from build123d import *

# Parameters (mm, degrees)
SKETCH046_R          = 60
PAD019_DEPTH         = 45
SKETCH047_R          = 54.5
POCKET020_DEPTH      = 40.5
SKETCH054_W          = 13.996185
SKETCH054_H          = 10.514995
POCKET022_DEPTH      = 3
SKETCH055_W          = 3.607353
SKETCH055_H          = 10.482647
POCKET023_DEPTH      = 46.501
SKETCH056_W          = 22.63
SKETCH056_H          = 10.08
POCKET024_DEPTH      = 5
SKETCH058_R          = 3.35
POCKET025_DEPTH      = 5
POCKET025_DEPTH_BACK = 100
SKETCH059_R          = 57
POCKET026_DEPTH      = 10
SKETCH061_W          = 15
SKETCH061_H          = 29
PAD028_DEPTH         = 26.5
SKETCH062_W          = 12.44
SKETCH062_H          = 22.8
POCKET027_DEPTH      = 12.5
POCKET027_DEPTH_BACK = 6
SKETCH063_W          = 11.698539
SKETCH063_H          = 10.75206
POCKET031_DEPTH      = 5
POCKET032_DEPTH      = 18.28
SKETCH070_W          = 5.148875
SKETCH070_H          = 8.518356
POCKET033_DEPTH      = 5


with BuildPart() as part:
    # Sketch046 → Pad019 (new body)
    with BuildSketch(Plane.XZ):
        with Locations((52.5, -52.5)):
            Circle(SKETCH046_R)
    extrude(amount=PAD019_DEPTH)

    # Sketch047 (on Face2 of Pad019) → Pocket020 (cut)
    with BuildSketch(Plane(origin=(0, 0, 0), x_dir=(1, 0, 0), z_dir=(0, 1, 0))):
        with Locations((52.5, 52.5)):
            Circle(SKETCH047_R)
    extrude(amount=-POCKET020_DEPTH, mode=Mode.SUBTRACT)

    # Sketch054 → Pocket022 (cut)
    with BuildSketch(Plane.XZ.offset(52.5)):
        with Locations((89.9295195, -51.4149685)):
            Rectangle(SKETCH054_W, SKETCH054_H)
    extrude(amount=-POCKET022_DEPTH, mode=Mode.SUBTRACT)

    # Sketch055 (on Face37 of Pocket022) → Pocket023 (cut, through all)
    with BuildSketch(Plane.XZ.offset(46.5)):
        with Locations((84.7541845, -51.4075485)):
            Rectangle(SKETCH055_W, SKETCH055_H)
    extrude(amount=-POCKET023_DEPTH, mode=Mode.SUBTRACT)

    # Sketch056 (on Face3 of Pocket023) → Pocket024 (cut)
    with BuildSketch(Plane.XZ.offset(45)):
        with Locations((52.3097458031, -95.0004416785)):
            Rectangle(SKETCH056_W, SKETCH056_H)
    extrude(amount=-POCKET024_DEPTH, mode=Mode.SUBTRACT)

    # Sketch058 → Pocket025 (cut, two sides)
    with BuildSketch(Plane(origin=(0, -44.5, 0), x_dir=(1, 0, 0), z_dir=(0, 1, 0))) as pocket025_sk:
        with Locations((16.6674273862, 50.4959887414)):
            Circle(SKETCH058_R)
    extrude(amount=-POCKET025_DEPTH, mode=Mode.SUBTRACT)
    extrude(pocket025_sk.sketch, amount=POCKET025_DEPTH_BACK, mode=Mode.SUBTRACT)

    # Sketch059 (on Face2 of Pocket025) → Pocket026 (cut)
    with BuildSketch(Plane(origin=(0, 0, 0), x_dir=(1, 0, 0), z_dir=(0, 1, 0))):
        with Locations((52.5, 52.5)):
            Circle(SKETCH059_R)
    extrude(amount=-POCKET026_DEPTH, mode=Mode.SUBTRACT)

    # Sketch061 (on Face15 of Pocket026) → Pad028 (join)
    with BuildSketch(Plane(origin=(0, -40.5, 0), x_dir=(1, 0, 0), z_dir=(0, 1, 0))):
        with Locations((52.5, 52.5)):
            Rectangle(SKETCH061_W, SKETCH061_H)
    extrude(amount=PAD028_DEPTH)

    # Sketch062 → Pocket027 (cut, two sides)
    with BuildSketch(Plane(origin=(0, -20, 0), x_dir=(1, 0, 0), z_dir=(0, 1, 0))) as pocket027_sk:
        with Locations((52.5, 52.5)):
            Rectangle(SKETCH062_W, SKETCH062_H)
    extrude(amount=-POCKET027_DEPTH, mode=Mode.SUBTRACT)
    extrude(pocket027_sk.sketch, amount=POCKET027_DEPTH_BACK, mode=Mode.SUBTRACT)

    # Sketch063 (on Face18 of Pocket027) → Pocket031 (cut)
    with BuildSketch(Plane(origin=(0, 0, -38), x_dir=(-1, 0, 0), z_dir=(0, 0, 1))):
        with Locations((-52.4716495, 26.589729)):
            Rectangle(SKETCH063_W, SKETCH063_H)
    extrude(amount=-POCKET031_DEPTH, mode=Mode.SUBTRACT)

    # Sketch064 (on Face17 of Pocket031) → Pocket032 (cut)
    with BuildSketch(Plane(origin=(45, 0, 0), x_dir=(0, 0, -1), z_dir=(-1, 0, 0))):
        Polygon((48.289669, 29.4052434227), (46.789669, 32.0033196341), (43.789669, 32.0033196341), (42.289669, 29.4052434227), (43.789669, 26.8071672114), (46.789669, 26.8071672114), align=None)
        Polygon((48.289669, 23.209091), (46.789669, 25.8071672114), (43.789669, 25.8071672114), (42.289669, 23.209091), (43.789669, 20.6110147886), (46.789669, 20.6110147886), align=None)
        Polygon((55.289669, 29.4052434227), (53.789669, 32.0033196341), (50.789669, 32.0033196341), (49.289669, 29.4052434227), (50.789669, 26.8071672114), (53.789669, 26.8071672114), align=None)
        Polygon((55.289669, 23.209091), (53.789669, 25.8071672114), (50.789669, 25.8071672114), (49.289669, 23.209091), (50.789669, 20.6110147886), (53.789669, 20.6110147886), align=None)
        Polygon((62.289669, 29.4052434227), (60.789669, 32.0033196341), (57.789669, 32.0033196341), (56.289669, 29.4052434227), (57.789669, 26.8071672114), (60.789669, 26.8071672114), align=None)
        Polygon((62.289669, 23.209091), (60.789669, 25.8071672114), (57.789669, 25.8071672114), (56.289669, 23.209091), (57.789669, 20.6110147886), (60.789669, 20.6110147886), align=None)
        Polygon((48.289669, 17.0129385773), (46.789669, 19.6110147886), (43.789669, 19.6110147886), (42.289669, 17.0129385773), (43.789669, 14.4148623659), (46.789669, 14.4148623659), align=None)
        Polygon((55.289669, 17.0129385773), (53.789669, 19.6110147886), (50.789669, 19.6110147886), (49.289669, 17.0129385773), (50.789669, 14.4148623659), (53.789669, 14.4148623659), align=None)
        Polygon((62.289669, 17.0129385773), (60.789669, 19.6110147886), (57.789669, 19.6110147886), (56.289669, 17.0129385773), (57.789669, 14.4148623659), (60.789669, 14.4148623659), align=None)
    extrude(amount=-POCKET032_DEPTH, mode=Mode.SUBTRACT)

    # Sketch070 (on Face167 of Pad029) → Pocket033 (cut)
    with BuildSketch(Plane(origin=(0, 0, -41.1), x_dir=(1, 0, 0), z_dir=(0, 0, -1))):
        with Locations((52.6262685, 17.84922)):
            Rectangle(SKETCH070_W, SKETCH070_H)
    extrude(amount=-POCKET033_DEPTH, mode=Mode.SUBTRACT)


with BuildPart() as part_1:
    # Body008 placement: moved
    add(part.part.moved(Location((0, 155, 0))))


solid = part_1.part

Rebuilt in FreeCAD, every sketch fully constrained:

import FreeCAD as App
import Part
import Sketcher
from FreeCAD import Vector
Q = App.Units.Quantity

doc = App.newDocument("Part")
body = doc.addObject("PartDesign::Body", "Body")

sketch1 = doc.addObject("Sketcher::SketchObject", "Sketch")
body.addObject(sketch1)
sketch1.AttachmentSupport = (doc.XZ_Plane, [""])
sketch1.MapMode = "FlatFace"
sketch1.addGeometry(Part.Circle(Vector(52.5, -52.5, 0), Vector(0, 0, 1), 60), False)
sketch1.addConstraint([
    Sketcher.Constraint("Diameter", 0, Q("120 mm")),
    Sketcher.Constraint("DistanceX", -1, 1, 0, 3, Q("52.5 mm")),
    Sketcher.Constraint("DistanceY", 0, 3, -1, 1, Q("52.5 mm")),
])
pad1 = doc.addObject("PartDesign::Pad", "Pad")
body.addObject(pad1)
pad1.Profile = sketch1
pad1.Length = 45

sketch2 = doc.addObject("Sketcher::SketchObject", "Sketch001")
body.addObject(sketch2)
sketch2.AttachmentSupport = (doc.XZ_Plane, [""])
sketch2.MapMode = "FlatFace"
sketch2.addGeometry(Part.Circle(Vector(52.5, -52.5, 0), Vector(0, 0, 1), 54.5), False)
sketch2.addConstraint([
    Sketcher.Constraint("Diameter", 0, Q("109 mm")),
    Sketcher.Constraint("DistanceX", -1, 1, 0, 3, Q("52.5 mm")),
    Sketcher.Constraint("DistanceY", 0, 3, -1, 1, Q("52.5 mm")),
])
pocket1 = doc.addObject("PartDesign::Pocket", "Pocket")
body.addObject(pocket1)
pocket1.Profile = sketch2
pocket1.Length = 40.5
pocket1.Reversed = True

sketch3 = doc.addObject("Sketcher::SketchObject", "Sketch002")
body.addObject(sketch3)
sketch3.AttachmentSupport = (doc.XZ_Plane, [""])
sketch3.MapMode = "FlatFace"
sketch3.AttachmentOffset = App.Placement(Vector(0, 0, 52.5), App.Rotation())
sketch3.addGeometry([
    Part.LineSegment(Vector(82.931427, -46.157471, 0), Vector(82.931427, -56.672466, 0)),
    Part.LineSegment(Vector(82.931427, -56.672466, 0), Vector(96.927612, -56.672466, 0)),
    Part.LineSegment(Vector(96.927612, -56.672466, 0), Vector(96.927612, -46.157471, 0)),
    Part.LineSegment(Vector(96.927612, -46.157471, 0), Vector(82.931427, -46.157471, 0)),
], False)
sketch3.addConstraint([
    Sketcher.Constraint("Coincident", 0, 2, 1, 1),
    Sketcher.Constraint("Coincident", 1, 2, 2, 1),
    Sketcher.Constraint("Coincident", 2, 2, 3, 1),
    Sketcher.Constraint("Coincident", 3, 2, 0, 1),
    Sketcher.Constraint("Vertical", 0),
    Sketcher.Constraint("Horizontal", 1),
    Sketcher.Constraint("Vertical", 2),
    Sketcher.Constraint("Horizontal", 3),
    Sketcher.Constraint("DistanceX", 1, 1, 1, 2, Q("13.996185 mm")),
    Sketcher.Constraint("DistanceY", 0, 2, 0, 1, Q("10.514995 mm")),
    Sketcher.Constraint("DistanceX", -1, 1, 1, 2, Q("96.927612 mm")),
    Sketcher.Constraint("DistanceY", 2, 2, -1, 1, Q("46.157471 mm")),
])
pocket2 = doc.addObject("PartDesign::Pocket", "Pocket001")
body.addObject(pocket2)
pocket2.Profile = sketch3
pocket2.Length = 3

sketch4 = doc.addObject("Sketcher::SketchObject", "Sketch003")
body.addObject(sketch4)
sketch4.AttachmentSupport = (doc.XZ_Plane, [""])
sketch4.MapMode = "FlatFace"
sketch4.AttachmentOffset = App.Placement(Vector(0, 0, 46.5), App.Rotation())
sketch4.addGeometry([
    Part.LineSegment(Vector(82.950508, -46.166225, 0), Vector(82.950508, -56.648872, 0)),
    Part.LineSegment(Vector(82.950508, -56.648872, 0), Vector(86.557861, -56.648872, 0)),
    Part.LineSegment(Vector(86.557861, -56.648872, 0), Vector(86.557861, -46.166225, 0)),
    Part.LineSegment(Vector(86.557861, -46.166225, 0), Vector(82.950508, -46.166225, 0)),
], False)
sketch4.addConstraint([
    Sketcher.Constraint("Coincident", 0, 2, 1, 1),
    Sketcher.Constraint("Coincident", 1, 2, 2, 1),
    Sketcher.Constraint("Coincident", 2, 2, 3, 1),
    Sketcher.Constraint("Coincident", 3, 2, 0, 1),
    Sketcher.Constraint("Vertical", 0),
    Sketcher.Constraint("Horizontal", 1),
    Sketcher.Constraint("Vertical", 2),
    Sketcher.Constraint("Horizontal", 3),
    Sketcher.Constraint("DistanceX", 1, 1, 1, 2, Q("3.607353 mm")),
    Sketcher.Constraint("DistanceY", 0, 2, 0, 1, Q("10.482647 mm")),
    Sketcher.Constraint("DistanceX", -1, 1, 0, 2, Q("82.950508 mm")),
    Sketcher.Constraint("DistanceY", 0, 2, -1, 1, Q("56.648872 mm")),
])
pocket3 = doc.addObject("PartDesign::Pocket", "Pocket002")
body.addObject(pocket3)
pocket3.Profile = sketch4
pocket3.Type = "ThroughAll"

sketch5 = doc.addObject("Sketcher::SketchObject", "Sketch004")
body.addObject(sketch5)
sketch5.AttachmentSupport = (doc.XZ_Plane, [""])
sketch5.MapMode = "FlatFace"
sketch5.AttachmentOffset = App.Placement(Vector(0, 0, 45), App.Rotation())
sketch5.addGeometry([
    Part.LineSegment(Vector(40.994746, -89.960442, 0), Vector(40.994746, -100.040442, 0)),
    Part.LineSegment(Vector(40.994746, -100.040442, 0), Vector(63.624746, -100.040442, 0)),
    Part.LineSegment(Vector(63.624746, -100.040442, 0), Vector(63.624746, -89.960442, 0)),
    Part.LineSegment(Vector(63.624746, -89.960442, 0), Vector(40.994746, -89.960442, 0)),
], False)
sketch5.addConstraint([
    Sketcher.Constraint("Coincident", 0, 2, 1, 1),
    Sketcher.Constraint("Coincident", 1, 2, 2, 1),
    Sketcher.Constraint("Coincident", 2, 2, 3, 1),
    Sketcher.Constraint("Coincident", 3, 2, 0, 1),
    Sketcher.Constraint("Vertical", 0),
    Sketcher.Constraint("Horizontal", 1),
    Sketcher.Constraint("Vertical", 2),
    Sketcher.Constraint("Horizontal", 3),
    Sketcher.Constraint("DistanceX", 1, 1, 1, 2, Q("22.63 mm")),
    Sketcher.Constraint("DistanceY", 0, 2, 0, 1, Q("10.08 mm")),
    Sketcher.Constraint("DistanceY", 0, 2, -1, 1, Q("100.040442 mm")),
    Sketcher.Constraint("DistanceX", -1, 1, 0, 2, Q("40.994746 mm")),
])
pocket4 = doc.addObject("PartDesign::Pocket", "Pocket003")
body.addObject(pocket4)
pocket4.Profile = sketch5
pocket4.Length = 5

sketch6 = doc.addObject("Sketcher::SketchObject", "Sketch005")
body.addObject(sketch6)
sketch6.AttachmentSupport = (doc.XZ_Plane, [""])
sketch6.MapMode = "FlatFace"
sketch6.AttachmentOffset = App.Placement(Vector(0, 0, 44.5), App.Rotation())
sketch6.addGeometry(Part.Circle(Vector(16.667427, -50.495989, 0), Vector(0, 0, 1), 3.35), False)
sketch6.addConstraint([
    Sketcher.Constraint("Diameter", 0, Q("6.7 mm")),
    Sketcher.Constraint("DistanceY", 0, 3, -1, 1, Q("50.495989 mm")),
    Sketcher.Constraint("DistanceX", -1, 1, 0, 3, Q("16.667427 mm")),
])
pocket5 = doc.addObject("PartDesign::Pocket", "Pocket004")
body.addObject(pocket5)
pocket5.Profile = sketch6
pocket5.Type = "ThroughAll"
pocket5.Midplane = True

sketch7 = doc.addObject("Sketcher::SketchObject", "Sketch006")
body.addObject(sketch7)
sketch7.AttachmentSupport = (doc.XZ_Plane, [""])
sketch7.MapMode = "FlatFace"
sketch7.addGeometry(Part.Circle(Vector(52.5, -52.5, 0), Vector(0, 0, 1), 57), False)
sketch7.addConstraint([
    Sketcher.Constraint("Diameter", 0, Q("114 mm")),
    Sketcher.Constraint("DistanceX", -1, 1, 0, 3, Q("52.5 mm")),
    Sketcher.Constraint("DistanceY", 0, 3, -1, 1, Q("52.5 mm")),
])
pocket6 = doc.addObject("PartDesign::Pocket", "Pocket005")
body.addObject(pocket6)
pocket6.Profile = sketch7
pocket6.Length = 10
pocket6.Reversed = True

sketch8 = doc.addObject("Sketcher::SketchObject", "Sketch007")
body.addObject(sketch8)
sketch8.AttachmentSupport = (doc.XZ_Plane, [""])
sketch8.MapMode = "FlatFace"
sketch8.AttachmentOffset = App.Placement(Vector(0, 0, 40.5), App.Rotation())
sketch8.addGeometry([
    Part.LineSegment(Vector(45, -67, 0), Vector(45, -38, 0)),
    Part.LineSegment(Vector(45, -38, 0), Vector(60, -38, 0)),
    Part.LineSegment(Vector(60, -38, 0), Vector(60, -67, 0)),
    Part.LineSegment(Vector(60, -67, 0), Vector(45, -67, 0)),
], False)
sketch8.addConstraint([
    Sketcher.Constraint("Coincident", 0, 2, 1, 1),
    Sketcher.Constraint("Coincident", 1, 2, 2, 1),
    Sketcher.Constraint("Coincident", 2, 2, 3, 1),
    Sketcher.Constraint("Coincident", 3, 2, 0, 1),
    Sketcher.Constraint("Vertical", 0),
    Sketcher.Constraint("Horizontal", 1),
    Sketcher.Constraint("Vertical", 2),
    Sketcher.Constraint("Horizontal", 3),
    Sketcher.Constraint("DistanceX", 1, 1, 1, 2, Q("15 mm")),
    Sketcher.Constraint("DistanceY", 0, 1, 0, 2, Q("29 mm")),
    Sketcher.Constraint("DistanceX", -1, 1, 0, 2, Q("45 mm")),
    Sketcher.Constraint("DistanceY", 0, 2, -1, 1, Q("38 mm")),
])
pad2 = doc.addObject("PartDesign::Pad", "Pad001")
body.addObject(pad2)
pad2.Profile = sketch8
pad2.Length = 26.5
pad2.Reversed = True

sketch9 = doc.addObject("Sketcher::SketchObject", "Sketch008")
body.addObject(sketch9)
sketch9.AttachmentSupport = (doc.XZ_Plane, [""])
sketch9.MapMode = "FlatFace"
sketch9.AttachmentOffset = App.Placement(Vector(0, 0, 20), App.Rotation())
sketch9.addGeometry([
    Part.LineSegment(Vector(46.28, -63.9, 0), Vector(46.28, -41.1, 0)),
    Part.LineSegment(Vector(46.28, -41.1, 0), Vector(58.72, -41.1, 0)),
    Part.LineSegment(Vector(58.72, -41.1, 0), Vector(58.72, -63.9, 0)),
    Part.LineSegment(Vector(58.72, -63.9, 0), Vector(46.28, -63.9, 0)),
], False)
sketch9.addConstraint([
    Sketcher.Constraint("Coincident", 0, 2, 1, 1),
    Sketcher.Constraint("Coincident", 1, 2, 2, 1),
    Sketcher.Constraint("Coincident", 2, 2, 3, 1),
    Sketcher.Constraint("Coincident", 3, 2, 0, 1),
    Sketcher.Constraint("Vertical", 0),
    Sketcher.Constraint("Horizontal", 1),
    Sketcher.Constraint("Vertical", 2),
    Sketcher.Constraint("Horizontal", 3),
    Sketcher.Constraint("DistanceY", 0, 1, 0, 2, Q("22.8 mm")),
    Sketcher.Constraint("DistanceX", 1, 1, 1, 2, Q("12.44 mm")),
    Sketcher.Constraint("DistanceY", 0, 2, -1, 1, Q("41.1 mm")),
    Sketcher.Constraint("DistanceX", -1, 1, 0, 2, Q("46.28 mm")),
])
pocket7 = doc.addObject("PartDesign::Pocket", "Pocket006")
body.addObject(pocket7)
pocket7.Profile = sketch9
pocket7.Type = "TwoLengths"
pocket7.Length = 12.5
pocket7.Length2 = 6
pocket7.Reversed = True

sketch10 = doc.addObject("Sketcher::SketchObject", "Sketch009")
body.addObject(sketch10)
sketch10.AttachmentSupport = (doc.XY_Plane, [""])
sketch10.MapMode = "FlatFace"
sketch10.AttachmentOffset = App.Placement(Vector(0, 0, -38), App.Rotation())
sketch10.addGeometry([
    Part.LineSegment(Vector(58.320919, -31.965759, 0), Vector(58.320919, -21.213699, 0)),
    Part.LineSegment(Vector(58.320919, -21.213699, 0), Vector(46.62238, -21.213699, 0)),
    Part.LineSegment(Vector(46.62238, -21.213699, 0), Vector(46.62238, -31.965759, 0)),
    Part.LineSegment(Vector(46.62238, -31.965759, 0), Vector(58.320919, -31.965759, 0)),
], False)
sketch10.addConstraint([
    Sketcher.Constraint("Coincident", 0, 2, 1, 1),
    Sketcher.Constraint("Coincident", 1, 2, 2, 1),
    Sketcher.Constraint("Coincident", 2, 2, 3, 1),
    Sketcher.Constraint("Coincident", 3, 2, 0, 1),
    Sketcher.Constraint("Vertical", 0),
    Sketcher.Constraint("Horizontal", 1),
    Sketcher.Constraint("Vertical", 2),
    Sketcher.Constraint("Horizontal", 3),
    Sketcher.Constraint("DistanceX", 1, 2, 1, 1, Q("11.698539 mm")),
    Sketcher.Constraint("DistanceY", 0, 1, 0, 2, Q("10.75206 mm")),
    Sketcher.Constraint("DistanceY", 0, 2, -1, 1, Q("21.213699 mm")),
    Sketcher.Constraint("DistanceX", -1, 1, 0, 2, Q("58.320919 mm")),
])
pocket8 = doc.addObject("PartDesign::Pocket", "Pocket007")
body.addObject(pocket8)
pocket8.Profile = sketch10
pocket8.Length = 5

sketch11 = doc.addObject("Sketcher::SketchObject", "Sketch010")
body.addObject(sketch11)
sketch11.AttachmentSupport = (doc.YZ_Plane, [""])
sketch11.MapMode = "FlatFace"
sketch11.AttachmentOffset = App.Placement(Vector(0, 0, 45), App.Rotation())
sketch11.addGeometry([
    Part.LineSegment(Vector(-29.405243, -48.289669, 0), Vector(-32.00332, -46.789669, 0)),
    Part.LineSegment(Vector(-32.00332, -46.789669, 0), Vector(-32.00332, -43.789669, 0)),
    Part.LineSegment(Vector(-32.00332, -43.789669, 0), Vector(-29.405243, -42.289669, 0)),
    Part.LineSegment(Vector(-29.405243, -42.289669, 0), Vector(-26.807167, -43.789669, 0)),
    Part.LineSegment(Vector(-26.807167, -43.789669, 0), Vector(-26.807167, -46.789669, 0)),
    Part.LineSegment(Vector(-26.807167, -46.789669, 0), Vector(-29.405243, -48.289669, 0)),
    Part.LineSegment(Vector(-23.209091, -48.289669, 0), Vector(-25.807167, -46.789669, 0)),
    Part.LineSegment(Vector(-25.807167, -46.789669, 0), Vector(-25.807167, -43.789669, 0)),
    Part.LineSegment(Vector(-25.807167, -43.789669, 0), Vector(-23.209091, -42.289669, 0)),
    Part.LineSegment(Vector(-23.209091, -42.289669, 0), Vector(-20.611015, -43.789669, 0)),
    Part.LineSegment(Vector(-20.611015, -43.789669, 0), Vector(-20.611015, -46.789669, 0)),
    Part.LineSegment(Vector(-20.611015, -46.789669, 0), Vector(-23.209091, -48.289669, 0)),
    Part.LineSegment(Vector(-29.405243, -55.289669, 0), Vector(-32.00332, -53.789669, 0)),
    Part.LineSegment(Vector(-32.00332, -53.789669, 0), Vector(-32.00332, -50.789669, 0)),
    Part.LineSegment(Vector(-32.00332, -50.789669, 0), Vector(-29.405243, -49.289669, 0)),
    Part.LineSegment(Vector(-29.405243, -49.289669, 0), Vector(-26.807167, -50.789669, 0)),
    Part.LineSegment(Vector(-26.807167, -50.789669, 0), Vector(-26.807167, -53.789669, 0)),
    Part.LineSegment(Vector(-26.807167, -53.789669, 0), Vector(-29.405243, -55.289669, 0)),
    Part.LineSegment(Vector(-23.209091, -55.289669, 0), Vector(-25.807167, -53.789669, 0)),
    Part.LineSegment(Vector(-25.807167, -53.789669, 0), Vector(-25.807167, -50.789669, 0)),
    Part.LineSegment(Vector(-25.807167, -50.789669, 0), Vector(-23.209091, -49.289669, 0)),
    Part.LineSegment(Vector(-23.209091, -49.289669, 0), Vector(-20.611015, -50.789669, 0)),
    Part.LineSegment(Vector(-20.611015, -50.789669, 0), Vector(-20.611015, -53.789669, 0)),
    Part.LineSegment(Vector(-20.611015, -53.789669, 0), Vector(-23.209091, -55.289669, 0)),
    Part.LineSegment(Vector(-29.405243, -62.289669, 0), Vector(-32.00332, -60.789669, 0)),
    Part.LineSegment(Vector(-32.00332, -60.789669, 0), Vector(-32.00332, -57.789669, 0)),
    Part.LineSegment(Vector(-32.00332, -57.789669, 0), Vector(-29.405243, -56.289669, 0)),
    Part.LineSegment(Vector(-29.405243, -56.289669, 0), Vector(-26.807167, -57.789669, 0)),
    Part.LineSegment(Vector(-26.807167, -57.789669, 0), Vector(-26.807167, -60.789669, 0)),
    Part.LineSegment(Vector(-26.807167, -60.789669, 0), Vector(-29.405243, -62.289669, 0)),
    Part.LineSegment(Vector(-23.209091, -62.289669, 0), Vector(-25.807167, -60.789669, 0)),
    Part.LineSegment(Vector(-25.807167, -60.789669, 0), Vector(-25.807167, -57.789669, 0)),
    Part.LineSegment(Vector(-25.807167, -57.789669, 0), Vector(-23.209091, -56.289669, 0)),
    Part.LineSegment(Vector(-23.209091, -56.289669, 0), Vector(-20.611015, -57.789669, 0)),
    Part.LineSegment(Vector(-20.611015, -57.789669, 0), Vector(-20.611015, -60.789669, 0)),
    Part.LineSegment(Vector(-20.611015, -60.789669, 0), Vector(-23.209091, -62.289669, 0)),
    Part.LineSegment(Vector(-17.012939, -48.289669, 0), Vector(-19.611015, -46.789669, 0)),
    Part.LineSegment(Vector(-19.611015, -46.789669, 0), Vector(-19.611015, -43.789669, 0)),
    Part.LineSegment(Vector(-19.611015, -43.789669, 0), Vector(-17.012939, -42.289669, 0)),
    Part.LineSegment(Vector(-17.012939, -42.289669, 0), Vector(-14.414862, -43.789669, 0)),
    Part.LineSegment(Vector(-14.414862, -43.789669, 0), Vector(-14.414862, -46.789669, 0)),
    Part.LineSegment(Vector(-14.414862, -46.789669, 0), Vector(-17.012939, -48.289669, 0)),
    Part.LineSegment(Vector(-17.012939, -55.289669, 0), Vector(-19.611015, -53.789669, 0)),
    Part.LineSegment(Vector(-19.611015, -53.789669, 0), Vector(-19.611015, -50.789669, 0)),
    Part.LineSegment(Vector(-19.611015, -50.789669, 0), Vector(-17.012939, -49.289669, 0)),
    Part.LineSegment(Vector(-17.012939, -49.289669, 0), Vector(-14.414862, -50.789669, 0)),
    Part.LineSegment(Vector(-14.414862, -50.789669, 0), Vector(-14.414862, -53.789669, 0)),
    Part.LineSegment(Vector(-14.414862, -53.789669, 0), Vector(-17.012939, -55.289669, 0)),
    Part.LineSegment(Vector(-17.012939, -62.289669, 0), Vector(-19.611015, -60.789669, 0)),
    Part.LineSegment(Vector(-19.611015, -60.789669, 0), Vector(-19.611015, -57.789669, 0)),
    Part.LineSegment(Vector(-19.611015, -57.789669, 0), Vector(-17.012939, -56.289669, 0)),
    Part.LineSegment(Vector(-17.012939, -56.289669, 0), Vector(-14.414862, -57.789669, 0)),
    Part.LineSegment(Vector(-14.414862, -57.789669, 0), Vector(-14.414862, -60.789669, 0)),
    Part.LineSegment(Vector(-14.414862, -60.789669, 0), Vector(-17.012939, -62.289669, 0)),
], False)
sketch11.addConstraint([
    Sketcher.Constraint("Coincident", 0, 2, 1, 1),
    Sketcher.Constraint("Coincident", 1, 2, 2, 1),
    Sketcher.Constraint("Coincident", 2, 2, 3, 1),
    Sketcher.Constraint("Coincident", 3, 2, 4, 1),
    Sketcher.Constraint("Coincident", 4, 2, 5, 1),
    Sketcher.Constraint("Coincident", 5, 2, 0, 1),
    Sketcher.Constraint("Coincident", 6, 2, 7, 1),
    Sketcher.Constraint("Coincident", 7, 2, 8, 1),
    Sketcher.Constraint("Coincident", 8, 2, 9, 1),
    Sketcher.Constraint("Coincident", 9, 2, 10, 1),
    Sketcher.Constraint("Coincident", 10, 2, 11, 1),
    Sketcher.Constraint("Coincident", 11, 2, 6, 1),
    Sketcher.Constraint("Coincident", 12, 2, 13, 1),
    Sketcher.Constraint("Coincident", 13, 2, 14, 1),
    Sketcher.Constraint("Coincident", 14, 2, 15, 1),
    Sketcher.Constraint("Coincident", 15, 2, 16, 1),
    Sketcher.Constraint("Coincident", 16, 2, 17, 1),
    Sketcher.Constraint("Coincident", 17, 2, 12, 1),
    Sketcher.Constraint("Coincident", 18, 2, 19, 1),
    Sketcher.Constraint("Coincident", 19, 2, 20, 1),
    Sketcher.Constraint("Coincident", 20, 2, 21, 1),
    Sketcher.Constraint("Coincident", 21, 2, 22, 1),
    Sketcher.Constraint("Coincident", 22, 2, 23, 1),
    Sketcher.Constraint("Coincident", 23, 2, 18, 1),
    Sketcher.Constraint("Coincident", 24, 2, 25, 1),
    Sketcher.Constraint("Coincident", 25, 2, 26, 1),
    Sketcher.Constraint("Coincident", 26, 2, 27, 1),
    Sketcher.Constraint("Coincident", 27, 2, 28, 1),
    Sketcher.Constraint("Coincident", 28, 2, 29, 1),
    Sketcher.Constraint("Coincident", 29, 2, 24, 1),
    Sketcher.Constraint("Coincident", 30, 2, 31, 1),
    Sketcher.Constraint("Coincident", 31, 2, 32, 1),
    Sketcher.Constraint("Coincident", 32, 2, 33, 1),
    Sketcher.Constraint("Coincident", 33, 2, 34, 1),
    Sketcher.Constraint("Coincident", 34, 2, 35, 1),
    Sketcher.Constraint("Coincident", 35, 2, 30, 1),
    Sketcher.Constraint("Coincident", 36, 2, 37, 1),
    Sketcher.Constraint("Coincident", 37, 2, 38, 1),
    Sketcher.Constraint("Coincident", 38, 2, 39, 1),
    Sketcher.Constraint("Coincident", 39, 2, 40, 1),
    Sketcher.Constraint("Coincident", 40, 2, 41, 1),
    Sketcher.Constraint("Coincident", 41, 2, 36, 1),
    Sketcher.Constraint("Coincident", 42, 2, 43, 1),
    Sketcher.Constraint("Coincident", 43, 2, 44, 1),
    Sketcher.Constraint("Coincident", 44, 2, 45, 1),
    Sketcher.Constraint("Coincident", 45, 2, 46, 1),
    Sketcher.Constraint("Coincident", 46, 2, 47, 1),
    Sketcher.Constraint("Coincident", 47, 2, 42, 1),
    Sketcher.Constraint("Coincident", 48, 2, 49, 1),
    Sketcher.Constraint("Coincident", 49, 2, 50, 1),
    Sketcher.Constraint("Coincident", 50, 2, 51, 1),
    Sketcher.Constraint("Coincident", 51, 2, 52, 1),
    Sketcher.Constraint("Coincident", 52, 2, 53, 1),
    Sketcher.Constraint("Coincident", 53, 2, 48, 1),
    Sketcher.Constraint("Vertical", 1),
    Sketcher.Constraint("Vertical", 4),
    Sketcher.Constraint("Vertical", 7),
    Sketcher.Constraint("Vertical", 10),
    Sketcher.Constraint("Vertical", 13),
    Sketcher.Constraint("Vertical", 16),
    Sketcher.Constraint("Vertical", 19),
    Sketcher.Constraint("Vertical", 22),
    Sketcher.Constraint("Vertical", 25),
    Sketcher.Constraint("Vertical", 28),
    Sketcher.Constraint("Vertical", 31),
    Sketcher.Constraint("Vertical", 34),
    Sketcher.Constraint("Vertical", 37),
    Sketcher.Constraint("Vertical", 40),
    Sketcher.Constraint("Vertical", 43),
    Sketcher.Constraint("Vertical", 46),
    Sketcher.Constraint("Vertical", 49),
    Sketcher.Constraint("Vertical", 52),
    Sketcher.Constraint("Parallel", 0, 3),
    Sketcher.Constraint("Parallel", 2, 5),
    Sketcher.Constraint("Parallel", 3, 6),
    Sketcher.Constraint("Parallel", 5, 8),
    Sketcher.Constraint("Parallel", 6, 9),
    Sketcher.Constraint("Parallel", 8, 11),
    Sketcher.Constraint("Parallel", 9, 12),
    Sketcher.Constraint("Parallel", 11, 14),
    Sketcher.Constraint("Parallel", 12, 15),
    Sketcher.Constraint("Parallel", 14, 17),
    Sketcher.Constraint("Parallel", 15, 18),
    Sketcher.Constraint("Parallel", 17, 20),
    Sketcher.Constraint("Parallel", 18, 21),
    Sketcher.Constraint("Parallel", 20, 23),
    Sketcher.Constraint("Parallel", 21, 24),
    Sketcher.Constraint("Parallel", 23, 26),
    Sketcher.Constraint("Parallel", 24, 27),
    Sketcher.Constraint("Parallel", 26, 29),
    Sketcher.Constraint("Parallel", 27, 30),
    Sketcher.Constraint("Parallel", 29, 32),
    Sketcher.Constraint("Parallel", 30, 33),
    Sketcher.Constraint("Parallel", 32, 35),
    Sketcher.Constraint("Parallel", 33, 36),
    Sketcher.Constraint("Parallel", 35, 38),
    Sketcher.Constraint("Parallel", 36, 39),
    Sketcher.Constraint("Parallel", 38, 41),
    Sketcher.Constraint("Parallel", 39, 42),
    Sketcher.Constraint("Parallel", 41, 44),
    Sketcher.Constraint("Parallel", 42, 45),
    Sketcher.Constraint("Parallel", 44, 47),
    Sketcher.Constraint("Parallel", 45, 48),
    Sketcher.Constraint("Parallel", 47, 50),
    Sketcher.Constraint("Parallel", 48, 51),
    Sketcher.Constraint("Parallel", 50, 53),
    Sketcher.Constraint("Horizontal", 1, 2, 3, 2),
    Sketcher.Constraint("Horizontal", 0, 2, 4, 2),
    Sketcher.Constraint("Horizontal", 4, 2, 6, 2),
    Sketcher.Constraint("Horizontal", 3, 2, 7, 2),
    Sketcher.Constraint("Horizontal", 2, 2, 8, 2),
    Sketcher.Constraint("Horizontal", 7, 2, 9, 2),
    Sketcher.Constraint("Horizontal", 6, 2, 10, 2),
    Sketcher.Constraint("Horizontal", 13, 2, 15, 2),
    Sketcher.Constraint("Horizontal", 12, 2, 16, 2),
    Sketcher.Constraint("Horizontal", 16, 2, 18, 2),
    Sketcher.Constraint("Horizontal", 15, 2, 19, 2),
    Sketcher.Constraint("Horizontal", 14, 2, 20, 2),
    Sketcher.Constraint("Horizontal", 19, 2, 21, 2),
    Sketcher.Constraint("Horizontal", 18, 2, 22, 2),
    Sketcher.Constraint("Horizontal", 25, 2, 27, 2),
    Sketcher.Constraint("Horizontal", 24, 2, 28, 2),
    Sketcher.Constraint("Horizontal", 28, 2, 30, 2),
    Sketcher.Constraint("Horizontal", 27, 2, 31, 2),
    Sketcher.Constraint("Horizontal", 26, 2, 32, 2),
    Sketcher.Constraint("Horizontal", 31, 2, 33, 2),
    Sketcher.Constraint("Horizontal", 30, 2, 34, 2),
    Sketcher.Constraint("Horizontal", 10, 2, 36, 2),
    Sketcher.Constraint("Horizontal", 9, 2, 37, 2),
    Sketcher.Constraint("Horizontal", 8, 2, 38, 2),
    Sketcher.Constraint("Horizontal", 37, 2, 39, 2),
    Sketcher.Constraint("Horizontal", 36, 2, 40, 2),
    Sketcher.Constraint("Horizontal", 22, 2, 42, 2),
    Sketcher.Constraint("Horizontal", 21, 2, 43, 2),
    Sketcher.Constraint("Horizontal", 20, 2, 44, 2),
    Sketcher.Constraint("Horizontal", 43, 2, 45, 2),
    Sketcher.Constraint("Horizontal", 42, 2, 46, 2),
    Sketcher.Constraint("Horizontal", 34, 2, 48, 2),
    Sketcher.Constraint("Horizontal", 33, 2, 49, 2),
    Sketcher.Constraint("Horizontal", 32, 2, 50, 2),
    Sketcher.Constraint("Horizontal", 49, 2, 51, 2),
    Sketcher.Constraint("Horizontal", 48, 2, 52, 2),
    Sketcher.Constraint("Vertical", 2, 2, 5, 2),
    Sketcher.Constraint("Vertical", 1, 2, 12, 2),
    Sketcher.Constraint("Vertical", 5, 2, 14, 2),
    Sketcher.Constraint("Vertical", 7, 2, 18, 2),
    Sketcher.Constraint("Vertical", 13, 2, 24, 2),
    Sketcher.Constraint("Vertical", 17, 2, 26, 2),
    Sketcher.Constraint("Vertical", 19, 2, 30, 2),
    Sketcher.Constraint("Vertical", 37, 2, 42, 2),
    Sketcher.Constraint("Vertical", 43, 2, 48, 2),
    Sketcher.Constraint("Equal", 10, 13),
    Sketcher.Constraint("Equal", 22, 25),
    Sketcher.Constraint("DistanceY", 1, 1, 1, 2, Q("3 mm")),
    Sketcher.Constraint("Angle", 0, Q("150 deg")),
    Sketcher.Constraint("Distance", 0, Q("3 mm")),
    Sketcher.Constraint("DistanceX", 4, 2, 6, 2, Q("1 mm")),
    Sketcher.Constraint("DistanceY", 12, 2, 0, 2, Q("7 mm")),
    Sketcher.Constraint("DistanceY", 24, 2, 12, 2, Q("7 mm")),
    Sketcher.Constraint("DistanceX", 10, 2, 36, 2, Q("1 mm")),
    Sketcher.Constraint("DistanceX", 0, 2, -1, 1, Q("32.00332 mm")),
    Sketcher.Constraint("DistanceY", 0, 2, -1, 1, Q("46.789669 mm")),
])
pocket9 = doc.addObject("PartDesign::Pocket", "Pocket008")
body.addObject(pocket9)
pocket9.Profile = sketch11
pocket9.Length = 18.28
pocket9.Reversed = True

sketch12 = doc.addObject("Sketcher::SketchObject", "Sketch011")
body.addObject(sketch12)
sketch12.AttachmentSupport = (doc.XY_Plane, [""])
sketch12.MapMode = "FlatFace"
sketch12.AttachmentOffset = App.Placement(Vector(0, 0, -41.1), App.Rotation())
sketch12.addGeometry([
    Part.LineSegment(Vector(50.051831, -22.108398, 0), Vector(50.051831, -13.590042, 0)),
    Part.LineSegment(Vector(50.051831, -13.590042, 0), Vector(55.200706, -13.590042, 0)),
    Part.LineSegment(Vector(55.200706, -13.590042, 0), Vector(55.200706, -22.108398, 0)),
    Part.LineSegment(Vector(55.200706, -22.108398, 0), Vector(50.051831, -22.108398, 0)),
], False)
sketch12.addConstraint([
    Sketcher.Constraint("Coincident", 0, 2, 1, 1),
    Sketcher.Constraint("Coincident", 1, 2, 2, 1),
    Sketcher.Constraint("Coincident", 2, 2, 3, 1),
    Sketcher.Constraint("Coincident", 3, 2, 0, 1),
    Sketcher.Constraint("Vertical", 0),
    Sketcher.Constraint("Horizontal", 1),
    Sketcher.Constraint("Vertical", 2),
    Sketcher.Constraint("Horizontal", 3),
    Sketcher.Constraint("DistanceY", 2, 2, -1, 1, Q("22.108398 mm")),
    Sketcher.Constraint("DistanceX", 1, 1, 1, 2, Q("5.148875 mm")),
    Sketcher.Constraint("DistanceY", 0, 1, 0, 2, Q("8.518356 mm")),
    Sketcher.Constraint("DistanceX", -1, 1, 0, 2, Q("50.051831 mm")),
])
pocket10 = doc.addObject("PartDesign::Pocket", "Pocket009")
body.addObject(pocket10)
pocket10.Profile = sketch12
pocket10.Length = 5
pocket10.Reversed = True
body2 = doc.addObject("PartDesign::Body", "Body001")
doc.recompute()

body.Placement = App.Placement(Vector(0, 155, 0), App.Rotation(Vector(0, 0, 1), 0))
boolean = doc.addObject("PartDesign::Boolean", "Boolean")
body2.addObject(boolean)
boolean.Type = "Fuse"
boolean.addObjects([body])

doc.recompute()
